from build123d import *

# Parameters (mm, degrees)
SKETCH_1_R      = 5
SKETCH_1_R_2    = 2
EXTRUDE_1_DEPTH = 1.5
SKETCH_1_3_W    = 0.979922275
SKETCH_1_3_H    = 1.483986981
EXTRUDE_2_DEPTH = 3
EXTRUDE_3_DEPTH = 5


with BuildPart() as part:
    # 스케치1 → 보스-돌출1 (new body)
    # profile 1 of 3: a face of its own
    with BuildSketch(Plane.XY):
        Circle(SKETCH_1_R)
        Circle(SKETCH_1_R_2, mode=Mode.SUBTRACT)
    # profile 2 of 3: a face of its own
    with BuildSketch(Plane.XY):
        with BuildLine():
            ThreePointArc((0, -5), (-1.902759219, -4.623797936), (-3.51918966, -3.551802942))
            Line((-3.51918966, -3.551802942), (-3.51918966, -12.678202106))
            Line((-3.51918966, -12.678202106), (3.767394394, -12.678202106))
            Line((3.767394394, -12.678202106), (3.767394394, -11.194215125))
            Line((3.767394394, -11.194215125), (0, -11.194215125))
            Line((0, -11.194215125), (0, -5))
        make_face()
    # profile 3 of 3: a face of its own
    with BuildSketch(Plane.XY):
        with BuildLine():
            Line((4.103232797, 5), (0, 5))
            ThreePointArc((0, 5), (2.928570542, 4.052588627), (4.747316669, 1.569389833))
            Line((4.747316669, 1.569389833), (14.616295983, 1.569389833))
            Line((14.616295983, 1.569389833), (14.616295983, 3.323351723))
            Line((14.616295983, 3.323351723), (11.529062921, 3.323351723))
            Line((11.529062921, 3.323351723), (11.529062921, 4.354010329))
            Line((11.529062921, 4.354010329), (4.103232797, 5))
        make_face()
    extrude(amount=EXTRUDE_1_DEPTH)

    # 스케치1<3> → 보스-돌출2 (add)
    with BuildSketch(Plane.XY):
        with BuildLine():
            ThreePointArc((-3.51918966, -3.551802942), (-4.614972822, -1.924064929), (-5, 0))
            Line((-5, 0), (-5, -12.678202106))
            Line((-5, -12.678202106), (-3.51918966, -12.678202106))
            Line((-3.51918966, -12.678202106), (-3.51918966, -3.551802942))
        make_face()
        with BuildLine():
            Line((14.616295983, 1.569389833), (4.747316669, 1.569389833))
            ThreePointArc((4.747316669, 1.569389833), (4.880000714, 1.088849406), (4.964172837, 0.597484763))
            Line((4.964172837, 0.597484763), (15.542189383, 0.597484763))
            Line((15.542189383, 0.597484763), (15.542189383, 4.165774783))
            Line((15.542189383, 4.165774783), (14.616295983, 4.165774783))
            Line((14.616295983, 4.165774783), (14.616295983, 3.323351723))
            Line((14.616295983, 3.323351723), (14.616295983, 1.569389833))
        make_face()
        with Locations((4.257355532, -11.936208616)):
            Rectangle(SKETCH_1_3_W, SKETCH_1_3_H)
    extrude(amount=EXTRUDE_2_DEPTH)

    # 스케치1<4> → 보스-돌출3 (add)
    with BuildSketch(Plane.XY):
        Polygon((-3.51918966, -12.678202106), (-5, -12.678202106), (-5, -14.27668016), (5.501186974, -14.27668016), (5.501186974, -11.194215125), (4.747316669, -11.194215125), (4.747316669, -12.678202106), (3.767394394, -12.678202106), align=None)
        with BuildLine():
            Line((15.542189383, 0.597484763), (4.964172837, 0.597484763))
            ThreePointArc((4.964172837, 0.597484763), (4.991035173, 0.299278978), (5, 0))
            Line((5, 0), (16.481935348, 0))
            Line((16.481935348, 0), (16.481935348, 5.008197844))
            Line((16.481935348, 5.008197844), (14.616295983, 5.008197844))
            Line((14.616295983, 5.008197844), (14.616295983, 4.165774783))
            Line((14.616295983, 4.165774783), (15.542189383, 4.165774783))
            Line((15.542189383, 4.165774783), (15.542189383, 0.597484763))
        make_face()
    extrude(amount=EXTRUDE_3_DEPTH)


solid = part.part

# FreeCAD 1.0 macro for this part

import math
import FreeCAD as App
import Part
import Sketcher
from FreeCAD import Vector
Q = App.Units.Quantity


def add_polygon(sketch, points):
    """Adds a closed chain of lines whose ends are joined by coincident constraints."""
    first, n = sketch.GeometryCount, len(points)
    for a, b in zip(points, points[1:] + points[:1]):
        sketch.addGeometry(Part.LineSegment(App.Vector(*a, 0), App.Vector(*b, 0)), False)
    for i in range(n):
        sketch.addConstraint(Sketcher.Constraint("Coincident", first + i, 2, first + (i + 1) % n, 1))

doc = App.newDocument("Part")
params = doc.addObject("Spreadsheet::Sheet", "Params")
for row, (alias, value) in enumerate([
    ("sketch1_diameter", "4 mm"),
    ("sketch1_radius", "5 mm"),
    ("pad1_length", "1.5 mm"),
    ("sketch2_radius", "5 mm"),
    ("pad2_length", "3 mm"),
    ("sketch3_radius", "5 mm"),
    ("pad3_length", "5 mm"),
], start=1):
    params.set(f"A{row}", alias)
    params.set(f"B{row}", "=" + value)
    params.setAlias(f"B{row}", alias)

body = doc.addObject("PartDesign::Body", "Body")

# Sketch on XY plane
sketch1 = body.newObject("Sketcher::SketchObject", "Sketch")
sketch1.AttachmentSupport = (doc.getObject("XY_Plane"), [""])
sketch1.MapMode = "FlatFace"
sketch1.addGeometry(Part.LineSegment(Vector(4.747317, 1.56939, 0), Vector(14.616296, 1.56939, 0)), False)
sketch1.addGeometry(Part.LineSegment(Vector(14.616296, 1.56939, 0), Vector(14.616296, 3.323352, 0)), False)
sketch1.addGeometry(Part.LineSegment(Vector(14.616296, 3.323352, 0), Vector(11.529063, 3.323352, 0)), False)
sketch1.addGeometry(Part.LineSegment(Vector(11.529063, 3.323352, 0), Vector(11.529063, 4.35401, 0)), False)
sketch1.addGeometry(Part.LineSegment(Vector(11.529063, 4.35401, 0), Vector(4.103233, 5, 0)), False)
sketch1.addGeometry(Part.LineSegment(Vector(4.103233, 5, 0), Vector(0, 5, 0)), False)
sketch1.addGeometry(Part.ArcOfCircle(Part.Circle(Vector(0, 0, 0), Vector(0, 0, 1), 5), math.radians(90), math.radians(225.264261)), False)
sketch1.addGeometry(Part.LineSegment(Vector(-3.51919, -3.551803, 0), Vector(-3.51919, -12.678202, 0)), False)
sketch1.addGeometry(Part.LineSegment(Vector(-3.51919, -12.678202, 0), Vector(3.767394, -12.678202, 0)), False)
sketch1.addGeometry(Part.LineSegment(Vector(3.767394, -12.678202, 0), Vector(3.767394, -11.194215, 0)), False)
sketch1.addGeometry(Part.LineSegment(Vector(3.767394, -11.194215, 0), Vector(0, -11.194215, 0)), False)
sketch1.addGeometry(Part.LineSegment(Vector(0, -11.194215, 0), Vector(0, -5, 0)), False)
sketch1.addGeometry(Part.ArcOfCircle(Part.Circle(Vector(0, 0, 0), Vector(0, 0, 1), 5), math.radians(-90), math.radians(18.293091)), False)
sketch1.addGeometry(Part.Circle(Vector(0, 0, 0), Vector(0, 0, 1), 2), False)
sketch1.addConstraint(Sketcher.Constraint("Coincident", 0, 2, 1, 1))
sketch1.addConstraint(Sketcher.Constraint("Coincident", 1, 2, 2, 1))
sketch1.addConstraint(Sketcher.Constraint("Coincident", 2, 2, 3, 1))
sketch1.addConstraint(Sketcher.Constraint("Coincident", 3, 2, 4, 1))
sketch1.addConstraint(Sketcher.Constraint("Coincident", 4, 2, 5, 1))
sketch1.addConstraint(Sketcher.Constraint("Tangent", 5, 2, 6, 1))
sketch1.addConstraint(Sketcher.Constraint("Coincident", 6, 2, 7, 1))
sketch1.addConstraint(Sketcher.Constraint("Coincident", 7, 2, 8, 1))
sketch1.addConstraint(Sketcher.Constraint("Coincident", 8, 2, 9, 1))
sketch1.addConstraint(Sketcher.Constraint("Coincident", 9, 2, 10, 1))
sketch1.addConstraint(Sketcher.Constraint("Coincident", 10, 2, 11, 1))
sketch1.addConstraint(Sketcher.Constraint("Coincident", 11, 2, 12, 1))
sketch1.addConstraint(Sketcher.Constraint("Coincident", 12, 2, 0, 1))
sketch1.addConstraint(Sketcher.Constraint("Horizontal", 0))
sketch1.addConstraint(Sketcher.Constraint("Vertical", 1))
sketch1.addConstraint(Sketcher.Constraint("Horizontal", 2))
sketch1.addConstraint(Sketcher.Constraint("Vertical", 3))
sketch1.addConstraint(Sketcher.Constraint("Horizontal", 5))
sketch1.addConstraint(Sketcher.Constraint("Vertical", 7))
sketch1.addConstraint(Sketcher.Constraint("Horizontal", 8))
sketch1.addConstraint(Sketcher.Constraint("Vertical", 9))
sketch1.addConstraint(Sketcher.Constraint("Horizontal", 10))
sketch1.addConstraint(Sketcher.Constraint("Vertical", 11))
sketch1.addConstraint(Sketcher.Constraint("Coincident", 6, 3, -1, 1))
sketch1.addConstraint(Sketcher.Constraint("Coincident", 12, 3, -1, 1))
sketch1.addConstraint(Sketcher.Constraint("Coincident", 13, 3, -1, 1))
sketch1.addConstraint(Sketcher.Constraint("Equal", 6, 12))
sketch1.addConstraint(Sketcher.Constraint("PointOnObject", 10, 2, -2))
sketch1.addConstraint(Sketcher.Constraint("Diameter", 13, Q("4 mm")))
sketch1.addConstraint(Sketcher.Constraint("Radius", 6, Q("5 mm")))
sketch1.addConstraint(Sketcher.Constraint("DistanceY", 7, 2, 7, 1, Q("9.126399 mm")))
sketch1.addConstraint(Sketcher.Constraint("DistanceX", 0, 1, 0, 2, Q("9.868979 mm")))
sketch1.addConstraint(Sketcher.Constraint("DistanceY", 1, 1, 1, 2, Q("1.753962 mm")))
sketch1.addConstraint(Sketcher.Constraint("DistanceY", 3, 1, 3, 2, Q("1.030659 mm")))
sketch1.addConstraint(Sketcher.Constraint("DistanceX", 2, 2, 2, 1, Q("3.087233 mm")))
sketch1.addConstraint(Sketcher.Constraint("DistanceX", 5, 2, 5, 1, Q("4.103233 mm")))
sketch1.addConstraint(Sketcher.Constraint("DistanceX", 8, 1, 8, 2, Q("7.286584 mm")))
sketch1.addConstraint(Sketcher.Constraint("DistanceX", 10, 2, 10, 1, Q("3.767394 mm")))
sketch1.addConstraint(Sketcher.Constraint("DistanceY", 9, 1, 9, 2, Q("1.483987 mm")))
sketch1.addConstraint(Sketcher.Constraint("DistanceY", -1, 1, 0, 2, Q("1.56939 mm")))
sketch1.setExpression("Constraints[28]", "Params.sketch1_diameter")
sketch1.setExpression("Constraints[29]", "Params.sketch1_radius")
pad1 = body.newObject("PartDesign::Pad", "Pad")
pad1.Profile = sketch1
pad1.setExpression("Length", "Params.pad1_length")

# Sketch on XY plane
sketch2 = body.newObject("Sketcher::SketchObject", "Sketch001")
sketch2.AttachmentSupport = (doc.getObject("XY_Plane"), [""])
sketch2.MapMode = "FlatFace"
sketch2.addGeometry(Part.ArcOfCircle(Part.Circle(Vector(0, 0, 0), Vector(0, 0, 1), 5), math.radians(-180), math.radians(-134.735739)), False)  # 0
sketch2.addGeometry(Part.LineSegment(Vector(-5, 0, 0), Vector(-5, -12.678202, 0)), False)  # 1
sketch2.addGeometry(Part.LineSegment(Vector(-5, -12.678202, 0), Vector(-3.51919, -12.678202, 0)), False)  # 2
sketch2.addGeometry(Part.LineSegment(Vector(-3.51919, -12.678202, 0), Vector(-3.51919, -3.551803, 0)), False)  # 3
sketch2.addGeometry(Part.LineSegment(Vector(14.616296, 1.56939, 0), Vector(4.747317, 1.56939, 0)), False)  # 4
sketch2.addGeometry(Part.ArcOfCircle(Part.Circle(Vector(0, 0, 0), Vector(0, 0, 1), 5), math.radians(6.863071), math.radians(18.293091)), False)  # 5
sketch2.addGeometry(Part.LineSegment(Vector(4.964173, 0.597485, 0), Vector(15.542189, 0.597485, 0)), False)  # 6
sketch2.addGeometry(Part.LineSegment(Vector(15.542189, 0.597485, 0), Vector(15.542189, 4.165775, 0)), False)  # 7
sketch2.addGeometry(Part.LineSegment(Vector(15.542189, 4.165775, 0), Vector(14.616296, 4.165775, 0)), False)  # 8
sketch2.addGeometry(Part.LineSegment(Vector(14.616296, 4.165775, 0), Vector(14.616296, 1.56939, 0)), False)  # 9
add_polygon(sketch2, [(3.767394, -11.194215), (3.767394, -12.678202), (4.747317, -12.678202), (4.747317, -11.194215)])  # lines 10-13
sketch2.addConstraint(Sketcher.Constraint("Tangent", 0, 1, 1, 1))
sketch2.addConstraint(Sketcher.Constraint("Coincident", 1, 2, 2, 1))
sketch2.addConstraint(Sketcher.Constraint("Coincident", 2, 2, 3, 1))
sketch2.addConstraint(Sketcher.Constraint("Coincident", 3, 2, 0, 2))
sketch2.addConstraint(Sketcher.Constraint("Coincident", 4, 2, 5, 2))
sketch2.addConstraint(Sketcher.Constraint("Coincident", 5, 1, 6, 1))
sketch2.addConstraint(Sketcher.Constraint("Coincident", 6, 2, 7, 1))
sketch2.addConstraint(Sketcher.Constraint("Coincident", 7, 2, 8, 1))
sketch2.addConstraint(Sketcher.Constraint("Coincident", 8, 2, 9, 1))
sketch2.addConstraint(Sketcher.Constraint("Coincident", 9, 2, 4, 1))
sketch2.addConstraint(Sketcher.Constraint("Vertical", 1))
sketch2.addConstraint(Sketcher.Constraint("Horizontal", 2))
sketch2.addConstraint(Sketcher.Constraint("Vertical", 3))
sketch2.addConstraint(Sketcher.Constraint("Horizontal", 4))
sketch2.addConstraint(Sketcher.Constraint("Horizontal", 6))
sketch2.addConstraint(Sketcher.Constraint("Vertical", 7))
sketch2.addConstraint(Sketcher.Constraint("Horizontal", 8))
sketch2.addConstraint(Sketcher.Constraint("Vertical", 9))
sketch2.addConstraint(Sketcher.Constraint("Vertical", 10))
sketch2.addConstraint(Sketcher.Constraint("Horizontal", 11))
sketch2.addConstraint(Sketcher.Constraint("Vertical", 12))
sketch2.addConstraint(Sketcher.Constraint("Horizontal", 13))
sketch2.addConstraint(Sketcher.Constraint("Coincident", 0, 3, -1, 1))
sketch2.addConstraint(Sketcher.Constraint("Coincident", 5, 3, -1, 1))
sketch2.addConstraint(Sketcher.Constraint("Equal", 0, 5))
sketch2.addConstraint(Sketcher.Constraint("Horizontal", 2, 2, 10, 2))
sketch2.addConstraint(Sketcher.Constraint("Vertical", 4, 2, 11, 2))
sketch2.addConstraint(Sketcher.Constraint("Radius", 0, Q("5 mm")))
sketch2.addConstraint(Sketcher.Constraint("DistanceY", 3, 1, 3, 2, Q("9.126399 mm")))
sketch2.addConstraint(Sketcher.Constraint("DistanceX", 2, 1, 2, 2, Q("1.48081 mm")))
sketch2.addConstraint(Sketcher.Constraint("DistanceX", 4, 2, 4, 1, Q("9.868979 mm")))
sketch2.addConstraint(Sketcher.Constraint("DistanceY", 7, 1, 7, 2, Q("3.56829 mm")))
sketch2.addConstraint(Sketcher.Constraint("DistanceX", 6, 1, 6, 2, Q("10.578017 mm")))
sketch2.addConstraint(Sketcher.Constraint("DistanceX", 8, 2, 8, 1, Q("0.925893 mm")))
sketch2.addConstraint(Sketcher.Constraint("DistanceX", 11, 1, 11, 2, Q("0.979922 mm")))
sketch2.addConstraint(Sketcher.Constraint("DistanceY", 9, 2, 9, 1, Q("2.596385 mm")))
sketch2.addConstraint(Sketcher.Constraint("DistanceY", 10, 2, 10, 1, Q("1.483987 mm")))
sketch2.setExpression("Constraints[31]", "Params.sketch2_radius")
pad2 = body.newObject("PartDesign::Pad", "Pad001")
pad2.Profile = sketch2
pad2.setExpression("Length", "Params.pad2_length")

# Sketch on XY plane
sketch3 = body.newObject("Sketcher::SketchObject", "Sketch002")
sketch3.AttachmentSupport = (doc.getObject("XY_Plane"), [""])
sketch3.MapMode = "FlatFace"
add_polygon(sketch3, [(-5, -12.678202), (-5, -14.27668), (5.501187, -14.27668), (5.501187, -11.194215), (4.747317, -11.194215), (4.747317, -12.678202)])  # lines 0-5
sketch3.addGeometry(Part.LineSegment(Vector(15.542189, 0.597485, 0), Vector(4.964173, 0.597485, 0)), False)  # 6
sketch3.addGeometry(Part.ArcOfCircle(Part.Circle(Vector(0, 0, 0), Vector(0, 0, 1), 5), math.radians(0), math.radians(6.863071)), False)  # 7
sketch3.addGeometry(Part.LineSegment(Vector(5, 0, 0), Vector(16.481935, 0, 0)), False)  # 8
sketch3.addGeometry(Part.LineSegment(Vector(16.481935, 0, 0), Vector(16.481935, 5.008198, 0)), False)  # 9
sketch3.addGeometry(Part.LineSegment(Vector(16.481935, 5.008198, 0), Vector(14.616296, 5.008198, 0)), False)  # 10
sketch3.addGeometry(Part.LineSegment(Vector(14.616296, 5.008198, 0), Vector(14.616296, 4.165775, 0)), False)  # 11
sketch3.addGeometry(Part.LineSegment(Vector(14.616296, 4.165775, 0), Vector(15.542189, 4.165775, 0)), False)  # 12
sketch3.addGeometry(Part.LineSegment(Vector(15.542189, 4.165775, 0), Vector(15.542189, 0.597485, 0)), False)  # 13
sketch3.addConstraint(Sketcher.Constraint("Coincident", 6, 2, 7, 2))
sketch3.addConstraint(Sketcher.Constraint("Coincident", 7, 1, 8, 1))
sketch3.addConstraint(Sketcher.Constraint("Coincident", 8, 2, 9, 1))
sketch3.addConstraint(Sketcher.Constraint("Coincident", 9, 2, 10, 1))
sketch3.addConstraint(Sketcher.Constraint("Coincident", 10, 2, 11, 1))
sketch3.addConstraint(Sketcher.Constraint("Coincident", 11, 2, 12, 1))
sketch3.addConstraint(Sketcher.Constraint("Coincident", 12, 2, 13, 1))
sketch3.addConstraint(Sketcher.Constraint("Coincident", 13, 2, 6, 1))
sketch3.addConstraint(Sketcher.Constraint("Vertical", 0))
sketch3.addConstraint(Sketcher.Constraint("Horizontal", 1))
sketch3.addConstraint(Sketcher.Constraint("Vertical", 2))
sketch3.addConstraint(Sketcher.Constraint("Horizontal", 3))
sketch3.addConstraint(Sketcher.Constraint("Vertical", 4))
sketch3.addConstraint(Sketcher.Constraint("Horizontal", 5))
sketch3.addConstraint(Sketcher.Constraint("Horizontal", 6))
sketch3.addConstraint(Sketcher.Constraint("Horizontal", 8))
sketch3.addConstraint(Sketcher.Constraint("Vertical", 9))
sketch3.addConstraint(Sketcher.Constraint("Horizontal", 10))
sketch3.addConstraint(Sketcher.Constraint("Vertical", 11))
sketch3.addConstraint(Sketcher.Constraint("Horizontal", 12))
sketch3.addConstraint(Sketcher.Constraint("Vertical", 13))
sketch3.addConstraint(Sketcher.Constraint("Coincident", 7, 3, -1, 1))
sketch3.addConstraint(Sketcher.Constraint("PointOnObject", 7, 1, -1))
sketch3.addConstraint(Sketcher.Constraint("Radius", 7, Q("5 mm")))
sketch3.addConstraint(Sketcher.Constraint("DistanceX", 0, 2, -1, 1, Q("5 mm")))
sketch3.addConstraint(Sketcher.Constraint("DistanceX", 3, 2, 3, 1, Q("0.75387 mm")))
sketch3.addConstraint(Sketcher.Constraint("DistanceX", 10, 2, 10, 1, Q("1.865639 mm")))
sketch3.addConstraint(Sketcher.Constraint("DistanceY", 0, 2, 0, 1, Q("1.598478 mm")))
sketch3.addConstraint(Sketcher.Constraint("DistanceY", 13, 2, 13, 1, Q("3.56829 mm")))
sketch3.addConstraint(Sketcher.Constraint("DistanceY", 3, 2, 6, 2, Q("11.7917 mm")))
sketch3.addConstraint(Sketcher.Constraint("DistanceX", 1, 1, 1, 2, Q("10.501187 mm")))
sketch3.addConstraint(Sketcher.Constraint("DistanceX", 6, 2, 6, 1, Q("10.578017 mm")))
sketch3.addConstraint(Sketcher.Constraint("DistanceX", 8, 1, 8, 2, Q("11.481935 mm")))
sketch3.addConstraint(Sketcher.Constraint("DistanceX", 12, 1, 12, 2, Q("0.925893 mm")))
sketch3.addConstraint(Sketcher.Constraint("DistanceY", 2, 1, 2, 2, Q("3.082465 mm")))
sketch3.addConstraint(Sketcher.Constraint("DistanceY", 9, 1, 9, 2, Q("5.008198 mm")))
sketch3.setExpression("Constraints[29]", "Params.sketch3_radius")
pad3 = body.newObject("PartDesign::Pad", "Pad002")
pad3.Profile = sketch3
pad3.setExpression("Length", "Params.pad3_length")

doc.recompute()
